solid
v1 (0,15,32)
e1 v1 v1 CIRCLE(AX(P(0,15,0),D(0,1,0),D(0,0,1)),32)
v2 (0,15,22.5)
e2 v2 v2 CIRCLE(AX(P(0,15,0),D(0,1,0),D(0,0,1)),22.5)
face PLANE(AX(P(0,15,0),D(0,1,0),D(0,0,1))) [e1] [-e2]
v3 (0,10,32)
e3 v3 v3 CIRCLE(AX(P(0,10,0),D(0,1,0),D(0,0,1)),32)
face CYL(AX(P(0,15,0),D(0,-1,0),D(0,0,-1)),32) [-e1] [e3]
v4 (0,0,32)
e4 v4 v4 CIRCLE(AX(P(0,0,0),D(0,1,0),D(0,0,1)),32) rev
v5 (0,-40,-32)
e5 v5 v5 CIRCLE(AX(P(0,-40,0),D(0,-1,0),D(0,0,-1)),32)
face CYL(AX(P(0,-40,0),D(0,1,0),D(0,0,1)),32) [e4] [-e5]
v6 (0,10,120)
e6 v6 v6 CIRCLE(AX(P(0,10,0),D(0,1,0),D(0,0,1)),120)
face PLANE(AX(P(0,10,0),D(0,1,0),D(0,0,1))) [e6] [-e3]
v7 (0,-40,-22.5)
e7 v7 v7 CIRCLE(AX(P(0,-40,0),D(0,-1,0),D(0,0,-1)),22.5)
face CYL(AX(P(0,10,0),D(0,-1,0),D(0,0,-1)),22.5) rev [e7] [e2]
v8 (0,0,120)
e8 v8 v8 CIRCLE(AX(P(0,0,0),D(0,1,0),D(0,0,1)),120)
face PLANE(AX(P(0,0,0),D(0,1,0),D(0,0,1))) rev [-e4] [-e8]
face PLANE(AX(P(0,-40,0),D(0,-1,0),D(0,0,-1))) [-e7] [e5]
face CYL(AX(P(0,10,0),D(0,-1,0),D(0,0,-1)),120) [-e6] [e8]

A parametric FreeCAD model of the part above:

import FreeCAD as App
import Part
import Sketcher
from FreeCAD import Vector
Q = App.Units.Quantity

doc = App.newDocument("Part")
body = doc.addObject("PartDesign::Body", "Body")

# Sketch on XZ plane
sketch1 = body.newObject("Sketcher::SketchObject", "Sketch")
sketch1.AttachmentSupport = (doc.getObject("XZ_Plane"), [""])
sketch1.MapMode = "FlatFace"
sketch1.addGeometry([
    Part.Circle(Vector(0, 0, 0), Vector(0, 0, 1), 120),
    Part.Circle(Vector(0, 0, 0), Vector(0, 0, 1), 22),
], False)
sketch1.addConstraint([
    Sketcher.Constraint("Coincident", 0, 3, -1, 1),
    Sketcher.Constraint("Coincident", 1, 3, -1, 1),
    Sketcher.Constraint("Diameter", 0, Q("240 mm")),
    Sketcher.Constraint("Diameter", 1, Q("45 mm")),
])
pad1 = body.newObject("PartDesign::Pad", "Pad")
pad1.Profile = sketch1
pad1.Length = 10
pad1.Reversed = True

# Sketch on XZ plane
sketch2 = body.newObject("Sketcher::SketchObject", "Sketch001")
sketch2.AttachmentSupport = (doc.getObject("XZ_Plane"), [""])
sketch2.MapMode = "FlatFace"
sketch2.AttachmentOffset = App.Placement(Vector(0, 0, 40), App.Rotation())
sketch2.addGeometry([
    Part.Circle(Vector(0, 0, 0), Vector(0, 0, 1), 32),
    Part.Circle(Vector(0, 0, 0), Vector(0, 0, 1), 22),
], False)
sketch2.addConstraint([
    Sketcher.Constraint("Coincident", 0, 3, -1, 1),
    Sketcher.Constraint("Coincident", 1, 3, -1, 1),
    Sketcher.Constraint("Diameter", 0, Q("64 mm")),
    Sketcher.Constraint("Diameter", 1, Q("45 mm")),
])
pad2 = body.newObject("PartDesign::Pad", "Pad001")
pad2.Profile = sketch2
pad2.Length = 40
pad2.Reversed = True

# Sketch on XZ plane
sketch3 = body.newObject("Sketcher::SketchObject", "Sketch002")
sketch3.AttachmentSupport = (doc.getObject("XZ_Plane"), [""])
sketch3.MapMode = "FlatFace"
sketch3.AttachmentOffset = App.Placement(Vector(0, 0, -10), App.Rotation())
sketch3.addGeometry([
    Part.Circle(Vector(0, 0, 0), Vector(0, 0, 1), 32),
    Part.Circle(Vector(0, 0, 0), Vector(0, 0, 1), 22),
], False)
sketch3.addConstraint([
    Sketcher.Constraint("Coincident", 0, 3, -1, 1),
    Sketcher.Constraint("Coincident", 1, 3, -1, 1),
    Sketcher.Constraint("Diameter", 0, Q("64 mm")),
    Sketcher.Constraint("Diameter", 1, Q("45 mm")),
])
pad3 = body.newObject("PartDesign::Pad", "Pad002")
pad3.Profile = sketch3
pad3.Length = 5
pad3.Reversed = True

doc.recompute()
